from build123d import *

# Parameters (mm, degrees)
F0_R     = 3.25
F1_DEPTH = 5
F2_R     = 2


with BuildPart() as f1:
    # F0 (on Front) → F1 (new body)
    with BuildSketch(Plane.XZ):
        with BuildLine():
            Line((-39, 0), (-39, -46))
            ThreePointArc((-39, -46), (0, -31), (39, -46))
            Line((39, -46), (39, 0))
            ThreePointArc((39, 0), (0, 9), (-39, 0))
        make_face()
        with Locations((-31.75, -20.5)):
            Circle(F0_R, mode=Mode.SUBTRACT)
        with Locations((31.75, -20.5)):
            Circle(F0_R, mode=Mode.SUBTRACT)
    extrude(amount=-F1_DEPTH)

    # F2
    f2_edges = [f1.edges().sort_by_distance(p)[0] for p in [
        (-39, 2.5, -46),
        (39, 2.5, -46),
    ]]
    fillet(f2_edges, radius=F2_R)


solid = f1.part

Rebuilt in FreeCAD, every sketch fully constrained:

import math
import FreeCAD as App
import Part
import Sketcher


def edges_at(feature, points):
    """Names of the edges that pass closest to the given points."""
    edges = feature.Shape.Edges
    near = lambda p: min(range(len(edges)), key=lambda i: edges[i].distToShape(Part.Vertex(*p))[0])
    return sorted({f"Edge{near(p) + 1}" for p in points})

doc = App.newDocument("Part")
body = doc.addObject("PartDesign::Body", "Body")

sketch1 = body.newObject("Sketcher::SketchObject", "Sketch")
sketch1.AttachmentSupport = (doc.getObject("XZ_Plane"), [""])
sketch1.MapMode = "FlatFace"
sketch1.addGeometry(Part.LineSegment(App.Vector(-39, 0, 0), App.Vector(-39, -46, 0)), False)
sketch1.addGeometry(Part.ArcOfCircle(Part.Circle(App.Vector(0, -89.2, 0), App.Vector(0, 0, 1), 58.2), math.radians(48), math.radians(132)), False)
sketch1.addGeometry(Part.LineSegment(App.Vector(39, -46, 0), App.Vector(39, 0, 0)), False)
sketch1.addGeometry(Part.ArcOfCircle(Part.Circle(App.Vector(0, -80, 0), App.Vector(0, 0, 1), 89), math.radians(64), math.radians(116)), False)
sketch1.addGeometry(Part.Circle(App.Vector(-31.8, -20.5, 0), App.Vector(0, 0, 1), 3.2), False)
sketch1.addGeometry(Part.Circle(App.Vector(31.8, -20.5, 0), App.Vector(0, 0, 1), 3.2), False)
sketch1.addConstraint(Sketcher.Constraint("Coincident", 0, 2, 1, 2))
sketch1.addConstraint(Sketcher.Constraint("Coincident", 1, 1, 2, 1))
sketch1.addConstraint(Sketcher.Constraint("Coincident", 2, 2, 3, 1))
sketch1.addConstraint(Sketcher.Constraint("Coincident", 3, 2, 0, 1))
sketch1.addConstraint(Sketcher.Constraint("Vertical", 0))
sketch1.addConstraint(Sketcher.Constraint("Vertical", 2))
sketch1.addConstraint(Sketcher.Constraint("Equal", 4, 5))
sketch1.addConstraint(Sketcher.Constraint("Symmetric", 2, 2, 3, 2, -1, 1))
sketch1.addConstraint(Sketcher.Constraint("Symmetric", 4, 3, 5, 3, -2))
sketch1.addConstraint(Sketcher.Constraint("PointOnObject", 1, 3, -2))
sketch1.addConstraint(Sketcher.Constraint("PointOnObject", 3, 3, -2))
sketch1.addConstraint(Sketcher.Constraint("Radius", 3, 89.0))
sketch1.addConstraint(Sketcher.Constraint("Diameter", 4, 6.5))
sketch1.addConstraint(Sketcher.Constraint("Radius", 1, 58.2))
sketch1.addConstraint(Sketcher.Constraint("DistanceY", 0, 2, 0, 1, 46.0))
sketch1.addConstraint(Sketcher.Constraint("DistanceY", 3, 3, -1, 1, 80.0))
sketch1.addConstraint(Sketcher.Constraint("DistanceY", 4, 3, -1, 1, 20.5))
sketch1.addConstraint(Sketcher.Constraint("DistanceX", 4, 3, 5, 3, 63.5))
pad1 = body.newObject("PartDesign::Pad", "Pad")
pad1.Profile = sketch1
pad1.Length = 5
pad1.Reversed = True
doc.recompute()

fillet = body.newObject("PartDesign::Fillet", "Fillet")
fillet.Base = (pad1, edges_at(pad1, [(-39, 2.5, -46), (39, 2.5, -46)]))
fillet.Radius = 2

doc.recompute()
